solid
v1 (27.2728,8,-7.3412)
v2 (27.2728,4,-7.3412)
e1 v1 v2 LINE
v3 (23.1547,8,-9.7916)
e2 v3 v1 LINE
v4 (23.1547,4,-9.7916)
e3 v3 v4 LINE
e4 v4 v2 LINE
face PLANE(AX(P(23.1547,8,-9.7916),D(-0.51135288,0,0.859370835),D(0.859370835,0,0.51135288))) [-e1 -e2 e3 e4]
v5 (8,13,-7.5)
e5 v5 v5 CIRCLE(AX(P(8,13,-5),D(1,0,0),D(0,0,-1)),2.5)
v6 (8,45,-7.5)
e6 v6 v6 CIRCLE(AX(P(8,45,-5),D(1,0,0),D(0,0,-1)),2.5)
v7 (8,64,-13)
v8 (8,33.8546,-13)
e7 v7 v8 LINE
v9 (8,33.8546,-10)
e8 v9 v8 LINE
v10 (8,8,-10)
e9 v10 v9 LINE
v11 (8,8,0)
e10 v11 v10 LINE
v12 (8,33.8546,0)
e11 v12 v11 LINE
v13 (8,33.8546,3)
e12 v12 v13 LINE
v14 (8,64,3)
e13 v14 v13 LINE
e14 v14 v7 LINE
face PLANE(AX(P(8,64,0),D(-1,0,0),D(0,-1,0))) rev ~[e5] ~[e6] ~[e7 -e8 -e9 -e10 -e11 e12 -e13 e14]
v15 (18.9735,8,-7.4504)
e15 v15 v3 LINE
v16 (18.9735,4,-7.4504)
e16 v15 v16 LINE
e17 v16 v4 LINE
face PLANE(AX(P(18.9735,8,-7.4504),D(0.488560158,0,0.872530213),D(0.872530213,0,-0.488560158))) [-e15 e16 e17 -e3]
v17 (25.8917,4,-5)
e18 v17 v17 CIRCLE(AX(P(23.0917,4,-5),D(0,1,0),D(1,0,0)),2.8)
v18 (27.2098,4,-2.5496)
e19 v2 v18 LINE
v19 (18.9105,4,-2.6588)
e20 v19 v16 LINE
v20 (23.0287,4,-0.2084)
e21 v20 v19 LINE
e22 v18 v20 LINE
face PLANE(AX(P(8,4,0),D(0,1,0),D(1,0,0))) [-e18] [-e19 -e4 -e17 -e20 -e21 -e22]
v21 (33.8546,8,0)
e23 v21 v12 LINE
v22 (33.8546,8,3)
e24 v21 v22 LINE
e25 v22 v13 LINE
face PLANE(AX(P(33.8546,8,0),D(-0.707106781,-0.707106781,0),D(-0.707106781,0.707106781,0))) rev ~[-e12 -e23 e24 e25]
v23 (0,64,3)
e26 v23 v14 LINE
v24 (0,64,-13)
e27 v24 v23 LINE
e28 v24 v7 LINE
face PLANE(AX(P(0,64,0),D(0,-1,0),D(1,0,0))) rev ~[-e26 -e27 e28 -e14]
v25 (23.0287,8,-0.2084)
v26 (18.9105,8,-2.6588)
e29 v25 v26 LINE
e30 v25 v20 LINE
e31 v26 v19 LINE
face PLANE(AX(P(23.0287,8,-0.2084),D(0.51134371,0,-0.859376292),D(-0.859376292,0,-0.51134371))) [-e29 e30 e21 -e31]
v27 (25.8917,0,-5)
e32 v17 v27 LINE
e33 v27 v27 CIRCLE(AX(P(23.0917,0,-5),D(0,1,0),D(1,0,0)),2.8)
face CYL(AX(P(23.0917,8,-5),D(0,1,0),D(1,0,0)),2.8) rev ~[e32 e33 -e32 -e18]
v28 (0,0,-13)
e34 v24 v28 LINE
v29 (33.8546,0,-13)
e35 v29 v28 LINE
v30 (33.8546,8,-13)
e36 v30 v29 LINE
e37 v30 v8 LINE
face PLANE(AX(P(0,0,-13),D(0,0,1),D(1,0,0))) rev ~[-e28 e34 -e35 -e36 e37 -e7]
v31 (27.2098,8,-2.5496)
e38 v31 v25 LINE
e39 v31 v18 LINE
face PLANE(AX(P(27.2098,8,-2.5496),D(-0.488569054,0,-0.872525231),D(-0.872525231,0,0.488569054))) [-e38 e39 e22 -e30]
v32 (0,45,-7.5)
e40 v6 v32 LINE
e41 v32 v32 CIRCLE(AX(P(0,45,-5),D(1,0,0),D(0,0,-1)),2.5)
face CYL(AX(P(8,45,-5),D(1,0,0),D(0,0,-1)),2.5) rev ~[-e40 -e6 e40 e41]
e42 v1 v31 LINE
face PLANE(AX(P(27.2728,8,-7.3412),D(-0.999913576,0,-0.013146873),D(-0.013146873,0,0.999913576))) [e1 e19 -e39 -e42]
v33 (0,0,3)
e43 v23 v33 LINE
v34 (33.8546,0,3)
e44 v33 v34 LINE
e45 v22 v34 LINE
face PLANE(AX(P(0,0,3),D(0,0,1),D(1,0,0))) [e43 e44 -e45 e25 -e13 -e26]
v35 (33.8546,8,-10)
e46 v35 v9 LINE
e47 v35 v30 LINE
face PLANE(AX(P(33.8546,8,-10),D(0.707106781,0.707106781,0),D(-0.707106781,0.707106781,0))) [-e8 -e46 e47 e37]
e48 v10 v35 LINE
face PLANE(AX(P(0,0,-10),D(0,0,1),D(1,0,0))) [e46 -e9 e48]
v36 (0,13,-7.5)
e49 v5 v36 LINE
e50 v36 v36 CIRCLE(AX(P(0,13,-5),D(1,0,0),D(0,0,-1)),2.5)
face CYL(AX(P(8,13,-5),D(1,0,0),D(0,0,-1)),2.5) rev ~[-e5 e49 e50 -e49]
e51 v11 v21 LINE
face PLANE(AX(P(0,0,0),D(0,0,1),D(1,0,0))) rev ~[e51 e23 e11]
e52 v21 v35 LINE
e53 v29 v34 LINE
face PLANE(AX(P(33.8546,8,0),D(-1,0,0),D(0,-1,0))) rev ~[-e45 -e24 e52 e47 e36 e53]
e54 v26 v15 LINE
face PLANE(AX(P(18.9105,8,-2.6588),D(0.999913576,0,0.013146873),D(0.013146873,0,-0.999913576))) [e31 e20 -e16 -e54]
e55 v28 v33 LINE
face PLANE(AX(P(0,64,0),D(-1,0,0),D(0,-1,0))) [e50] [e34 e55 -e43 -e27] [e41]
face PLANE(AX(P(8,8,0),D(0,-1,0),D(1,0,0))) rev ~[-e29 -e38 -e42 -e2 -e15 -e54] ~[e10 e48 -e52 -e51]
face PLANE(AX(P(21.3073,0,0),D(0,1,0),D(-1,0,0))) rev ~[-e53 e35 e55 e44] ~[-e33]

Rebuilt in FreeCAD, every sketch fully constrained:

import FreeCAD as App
import Part
import Sketcher
Q = App.Units.Quantity


def add_polygon(sketch, points):
    """Adds a closed chain of lines whose ends are joined by coincident constraints."""
    first, n = sketch.GeometryCount, len(points)
    for a, b in zip(points, points[1:] + points[:1]):
        sketch.addGeometry(Part.LineSegment(App.Vector(*a, 0), App.Vector(*b, 0)), False)
    for i in range(n):
        sketch.addConstraint(Sketcher.Constraint("Coincident", first + i, 2, first + (i + 1) % n, 1))

doc = App.newDocument("Part")
body = doc.addObject("PartDesign::Body", "Body")

sketch1 = doc.addObject("Sketcher::SketchObject", "Sketch")
body.addObject(sketch1)
sketch1.AttachmentSupport = (doc.XY_Plane, [""])
sketch1.MapMode = "FlatFace"
add_polygon(sketch1, [(8, 64), (0, 64), (0, 0), (34, 0), (34, 8), (8, 34)])
sketch1.addConstraint([
    Sketcher.Constraint("Horizontal", 0),
    Sketcher.Constraint("Vertical", 1),
    Sketcher.Constraint("Horizontal", 2),
    Sketcher.Constraint("Vertical", 3),
    Sketcher.Constraint("Vertical", 5),
    Sketcher.Constraint("Coincident", 1, 2, -1, 1),
    Sketcher.Constraint("Equal", 0, 3),
    Sketcher.Constraint("DistanceX", 0, 2, 0, 1, Q("8 mm")),
    Sketcher.Constraint("DistanceY", 1, 2, 1, 1, Q("64 mm")),
    Sketcher.Constraint("Angle", 4, Q("135 deg")),
    Sketcher.Constraint("Distance", 4, Q("36.564 mm")),
])
pad1 = doc.addObject("PartDesign::Pad", "Pad")
body.addObject(pad1)
pad1.Profile = sketch1
pad1.Length = 3

sketch2 = doc.addObject("Sketcher::SketchObject", "Sketch001")
body.addObject(sketch2)
sketch2.AttachmentSupport = (doc.XY_Plane, [""])
sketch2.MapMode = "FlatFace"
add_polygon(sketch2, [(8, 64), (0, 64), (0, 0), (34, 0), (34, 8), (8, 8)])
sketch2.addConstraint([
    Sketcher.Constraint("Horizontal", 0),
    Sketcher.Constraint("Vertical", 1),
    Sketcher.Constraint("Horizontal", 2),
    Sketcher.Constraint("Vertical", 3),
    Sketcher.Constraint("Horizontal", 4),
    Sketcher.Constraint("Vertical", 5),
    Sketcher.Constraint("Coincident", 1, 2, -1, 1),
    Sketcher.Constraint("Equal", 0, 3),
    Sketcher.Constraint("DistanceX", 0, 2, 0, 1, Q("8 mm")),
    Sketcher.Constraint("DistanceY", 1, 2, 1, 1, Q("64 mm")),
    Sketcher.Constraint("DistanceX", 2, 1, 2, 2, Q("33.8546 mm")),
])
pad2 = doc.addObject("PartDesign::Pad", "Pad001")
body.addObject(pad2)
pad2.Profile = sketch2
pad2.Length = 10
pad2.Reversed = True

sketch3 = doc.addObject("Sketcher::SketchObject", "Sketch002")
body.addObject(sketch3)
sketch3.AttachmentSupport = (doc.XY_Plane, [""])
sketch3.MapMode = "FlatFace"
sketch3.AttachmentOffset = App.Placement(App.Vector(0, 0, -10), App.Rotation())
add_polygon(sketch3, [(8, 64), (0, 64), (0, 0), (34, 0), (34, 8), (8, 34)])
sketch3.addConstraint([
    Sketcher.Constraint("Horizontal", 0),
    Sketcher.Constraint("Vertical", 1),
    Sketcher.Constraint("Horizontal", 2),
    Sketcher.Constraint("Vertical", 3),
    Sketcher.Constraint("Vertical", 5),
    Sketcher.Constraint("Coincident", 1, 2, -1, 1),
    Sketcher.Constraint("Equal", 0, 3),
    Sketcher.Constraint("DistanceX", 0, 2, 0, 1, Q("8 mm")),
    Sketcher.Constraint("DistanceY", 1, 2, 1, 1, Q("64 mm")),
    Sketcher.Constraint("Angle", 4, Q("135 deg")),
    Sketcher.Constraint("Distance", 4, Q("36.564 mm")),
])
pad3 = doc.addObject("PartDesign::Pad", "Pad002")
body.addObject(pad3)
pad3.Profile = sketch3
pad3.Length = 3
pad3.Reversed = True

sketch4 = doc.addObject("Sketcher::SketchObject", "Sketch003")
body.addObject(sketch4)
sketch4.AttachmentSupport = (doc.YZ_Plane, [""])
sketch4.MapMode = "FlatFace"
sketch4.AttachmentOffset = App.Placement(App.Vector(0, 0, 8), App.Rotation())
sketch4.addGeometry([
    Part.Circle(App.Vector(45, -5, 0), App.Vector(0, 0, 1), 2.5),
    Part.Circle(App.Vector(13, -5, 0), App.Vector(0, 0, 1), 2.5),
], False)
sketch4.addConstraint([
    Sketcher.Constraint("Equal", 0, 1),
    Sketcher.Constraint("Horizontal", 0, 3, 1, 3),
    Sketcher.Constraint("Diameter", 0, Q("5 mm")),
    Sketcher.Constraint("DistanceX", 1, 3, 0, 3, Q("32 mm")),
    Sketcher.Constraint("DistanceX", -1, 1, 0, 3, Q("45 mm")),
    Sketcher.Constraint("DistanceY", 0, 3, -1, 1, Q("5 mm")),
])
pocket1 = doc.addObject("PartDesign::Pocket", "Pocket")
body.addObject(pocket1)
pocket1.Profile = sketch4
pocket1.Type = "ThroughAll"

sketch5 = doc.addObject("Sketcher::SketchObject", "Sketch004")
body.addObject(sketch5)
sketch5.AttachmentSupport = (doc.XZ_Plane, [""])
sketch5.MapMode = "FlatFace"
sketch5.AttachmentOffset = App.Placement(App.Vector(0, 0, -8), App.Rotation())
sketch5.addGeometry(Part.Circle(App.Vector(23.1, -5, 0), App.Vector(0, 0, 1), 2.8), False)
sketch5.addConstraint([
    Sketcher.Constraint("Diameter", 0, Q("5.6 mm")),
    Sketcher.Constraint("DistanceY", 0, 3, -1, 1, Q("5 mm")),
    Sketcher.Constraint("DistanceX", -1, 1, 0, 3, Q("23.0917 mm")),
])
pocket2 = doc.addObject("PartDesign::Pocket", "Pocket001")
body.addObject(pocket2)
pocket2.Profile = sketch5
pocket2.Type = "ThroughAll"
pocket2.Reversed = True

sketch6 = doc.addObject("Sketcher::SketchObject", "Sketch005")
body.addObject(sketch6)
sketch6.AttachmentSupport = (doc.XZ_Plane, [""])
sketch6.MapMode = "FlatFace"
sketch6.AttachmentOffset = App.Placement(App.Vector(0, 0, -8), App.Rotation())
add_polygon(sketch6, [(23.2, -9.8), (19, -7.5), (18.9, -2.7), (23, -0.2), (27.2, -2.5), (27.3, -7.3)])
sketch6.addConstraint([
    Sketcher.Constraint("Parallel", 0, 3),
    Sketcher.Constraint("Parallel", 1, 4),
    Sketcher.Constraint("Parallel", 2, 5),
    Sketcher.Constraint("Equal", 0, 1),
    Sketcher.Constraint("Equal", 1, 2),
    Sketcher.Constraint("Equal", 2, 3),
    Sketcher.Constraint("Distance", 0, Q("4.792 mm")),
    Sketcher.Constraint("DistanceX", 1, 2, 0, 2, Q("0.063 mm")),
    Sketcher.Constraint("DistanceY", 0, 2, 2, 2, Q("7.242 mm")),
    Sketcher.Constraint("DistanceX", 2, 2, 3, 2, Q("4.181 mm")),
    Sketcher.Constraint("DistanceX", -1, 1, 0, 2, Q("18.9735 mm")),
    Sketcher.Constraint("DistanceY", 0, 2, -1, 1, Q("7.4504 mm")),
])
pocket3 = doc.addObject("PartDesign::Pocket", "Pocket002")
body.addObject(pocket3)
pocket3.Profile = sketch6
pocket3.Length = 4
pocket3.Reversed = True

doc.recompute()
